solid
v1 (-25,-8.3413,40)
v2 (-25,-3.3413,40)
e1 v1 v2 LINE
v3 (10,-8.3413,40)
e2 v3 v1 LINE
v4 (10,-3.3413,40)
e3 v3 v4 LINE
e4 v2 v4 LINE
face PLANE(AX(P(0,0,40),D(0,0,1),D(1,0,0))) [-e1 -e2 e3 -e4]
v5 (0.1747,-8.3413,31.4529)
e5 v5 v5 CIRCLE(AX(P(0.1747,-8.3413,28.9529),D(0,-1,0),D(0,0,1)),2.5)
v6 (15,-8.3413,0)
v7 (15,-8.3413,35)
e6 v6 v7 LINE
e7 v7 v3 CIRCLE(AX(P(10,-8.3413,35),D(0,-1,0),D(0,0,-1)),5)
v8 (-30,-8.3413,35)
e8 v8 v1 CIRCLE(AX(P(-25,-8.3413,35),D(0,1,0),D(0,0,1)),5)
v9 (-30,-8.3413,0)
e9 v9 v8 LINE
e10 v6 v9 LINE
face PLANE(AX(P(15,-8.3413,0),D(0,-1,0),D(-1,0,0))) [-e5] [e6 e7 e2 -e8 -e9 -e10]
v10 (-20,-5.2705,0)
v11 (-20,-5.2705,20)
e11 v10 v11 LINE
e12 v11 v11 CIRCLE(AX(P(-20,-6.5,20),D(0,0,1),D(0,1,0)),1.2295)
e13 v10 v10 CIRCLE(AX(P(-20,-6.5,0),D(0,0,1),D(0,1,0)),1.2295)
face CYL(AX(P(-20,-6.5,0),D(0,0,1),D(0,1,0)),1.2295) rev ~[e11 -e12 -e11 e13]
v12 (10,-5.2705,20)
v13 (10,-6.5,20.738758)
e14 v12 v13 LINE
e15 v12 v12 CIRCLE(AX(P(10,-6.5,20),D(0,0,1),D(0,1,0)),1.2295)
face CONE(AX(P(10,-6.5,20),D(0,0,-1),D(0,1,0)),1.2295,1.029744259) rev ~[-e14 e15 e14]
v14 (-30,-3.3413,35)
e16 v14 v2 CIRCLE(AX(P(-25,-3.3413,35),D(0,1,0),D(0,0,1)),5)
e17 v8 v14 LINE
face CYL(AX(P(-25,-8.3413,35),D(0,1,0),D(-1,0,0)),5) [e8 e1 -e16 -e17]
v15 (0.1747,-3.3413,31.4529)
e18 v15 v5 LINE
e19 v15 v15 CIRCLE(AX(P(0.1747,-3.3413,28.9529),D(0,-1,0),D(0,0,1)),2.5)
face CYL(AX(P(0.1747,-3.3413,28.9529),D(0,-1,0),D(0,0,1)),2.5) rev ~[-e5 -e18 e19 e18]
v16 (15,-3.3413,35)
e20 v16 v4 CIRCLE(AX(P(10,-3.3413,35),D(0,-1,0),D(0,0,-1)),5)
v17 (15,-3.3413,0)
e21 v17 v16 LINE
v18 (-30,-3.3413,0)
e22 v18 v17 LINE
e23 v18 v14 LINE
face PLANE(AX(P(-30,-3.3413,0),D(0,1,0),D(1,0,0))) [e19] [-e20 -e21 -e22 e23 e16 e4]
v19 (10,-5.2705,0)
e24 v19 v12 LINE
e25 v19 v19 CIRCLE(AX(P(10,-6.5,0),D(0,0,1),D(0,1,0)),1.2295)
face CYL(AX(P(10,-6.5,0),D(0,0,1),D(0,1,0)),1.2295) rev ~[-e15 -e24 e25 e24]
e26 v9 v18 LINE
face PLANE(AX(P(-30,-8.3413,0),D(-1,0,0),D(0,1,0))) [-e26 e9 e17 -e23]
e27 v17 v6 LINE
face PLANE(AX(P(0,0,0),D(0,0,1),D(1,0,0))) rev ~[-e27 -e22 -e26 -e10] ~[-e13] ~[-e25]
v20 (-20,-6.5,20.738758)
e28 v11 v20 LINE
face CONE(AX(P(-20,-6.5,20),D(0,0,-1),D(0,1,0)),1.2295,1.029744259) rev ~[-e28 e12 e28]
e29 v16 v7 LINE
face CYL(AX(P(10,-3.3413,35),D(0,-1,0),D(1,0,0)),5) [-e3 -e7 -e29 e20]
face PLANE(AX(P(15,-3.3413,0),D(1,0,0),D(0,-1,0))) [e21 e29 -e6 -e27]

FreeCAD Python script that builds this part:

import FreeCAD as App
import Part
import Sketcher

V = App.Vector
Q = App.Units.Quantity


def edges_at(feature, points):
    """Names of the edges that pass closest to the given points."""
    edges = feature.Shape.Edges
    near = lambda p: min(range(len(edges)), key=lambda i: edges[i].distToShape(Part.Vertex(*p))[0])
    return sorted({f"Edge{near(p) + 1}" for p in points})

doc = App.newDocument("Part")
body = doc.addObject("PartDesign::Body", "Body")

# Sketch on XY plane
sketch1 = body.newObject("Sketcher::SketchObject", "Sketch")
sketch1.AttachmentSupport = (doc.getObject("XY_Plane"), [""])
sketch1.MapMode = "FlatFace"
sketch1.addGeometry(Part.LineSegment(V(15, -3, 0), V(-30, -3, 0)), False)
sketch1.addGeometry(Part.LineSegment(V(-30, -3, 0), V(-30, -8, 0)), False)
sketch1.addGeometry(Part.LineSegment(V(-30, -8, 0), V(15, -8, 0)), False)
sketch1.addGeometry(Part.LineSegment(V(15, -8, 0), V(15, -3, 0)), False)
sketch1.addConstraint(Sketcher.Constraint("Coincident", 0, 2, 1, 1))
sketch1.addConstraint(Sketcher.Constraint("Coincident", 1, 2, 2, 1))
sketch1.addConstraint(Sketcher.Constraint("Coincident", 2, 2, 3, 1))
sketch1.addConstraint(Sketcher.Constraint("Coincident", 3, 2, 0, 1))
sketch1.addConstraint(Sketcher.Constraint("Horizontal", 0))
sketch1.addConstraint(Sketcher.Constraint("Vertical", 1))
sketch1.addConstraint(Sketcher.Constraint("Horizontal", 2))
sketch1.addConstraint(Sketcher.Constraint("Vertical", 3))
sketch1.addConstraint(Sketcher.Constraint("DistanceY", 1, 2, 1, 1, Q("5 mm")))
sketch1.addConstraint(Sketcher.Constraint("DistanceX", 0, 2, 0, 1, Q("45 mm")))
sketch1.addConstraint(Sketcher.Constraint("DistanceX", 0, 2, -1, 1, Q("30 mm")))
sketch1.addConstraint(Sketcher.Constraint("DistanceY", 0, 2, -1, 1, Q("3.3413 mm")))
pad1 = body.newObject("PartDesign::Pad", "Pad")
pad1.Profile = sketch1
pad1.Length = 40
doc.recompute()

fillet = body.newObject("PartDesign::Fillet", "Fillet")
fillet.Base = (pad1, edges_at(pad1, [(-30, -5.841, 40), (15, -5.841, 40)]))
fillet.Radius = 5

# Sketch on XZ plane
sketch2 = body.newObject("Sketcher::SketchObject", "Sketch001")
sketch2.AttachmentSupport = (doc.getObject("XZ_Plane"), [""])
sketch2.MapMode = "FlatFace"
sketch2.AttachmentOffset = App.Placement(V(0, 0, 3.3413), App.Rotation())
sketch2.addGeometry(Part.Circle(V(0.2, 29, 0), V(0, 0, 1), 2.5), False)
sketch2.addConstraint(Sketcher.Constraint("Diameter", 0, Q("5 mm")))
sketch2.addConstraint(Sketcher.Constraint("DistanceY", -1, 1, 0, 3, Q("28.953 mm")))
sketch2.addConstraint(Sketcher.Constraint("DistanceX", -1, 1, 0, 3, Q("0.1747 mm")))
doc.recompute()
hole = body.newObject("PartDesign::Hole", "Hole")
hole.Profile = sketch2
hole.ThreadType = "None"
hole.Diameter = 5
hole.DepthType = "Dimension"
hole.Depth = 8
hole.DrillPoint = "Angled"
hole.DrillPointAngle = 118
hole.Reversed = True

# Sketch on XY plane
sketch3 = body.newObject("Sketcher::SketchObject", "Sketch002")
sketch3.AttachmentSupport = (doc.getObject("XY_Plane"), [""])
sketch3.MapMode = "FlatFace"
sketch3.addGeometry(Part.Circle(V(10, -6.5, 0), V(0, 0, 1), 1.2), False)
sketch3.addGeometry(Part.Circle(V(-20, -6.5, 0), V(0, 0, 1), 1.2), False)
sketch3.addConstraint(Sketcher.Constraint("Equal", 0, 1))
sketch3.addConstraint(Sketcher.Constraint("Horizontal", 0, 3, 1, 3))
sketch3.addConstraint(Sketcher.Constraint("Diameter", 0, Q("2.459 mm")))
sketch3.addConstraint(Sketcher.Constraint("DistanceX", -1, 1, 0, 3, Q("10 mm")))
sketch3.addConstraint(Sketcher.Constraint("DistanceX", 1, 3, -1, 1, Q("20 mm")))
sketch3.addConstraint(Sketcher.Constraint("DistanceY", 0, 3, -1, 1, Q("6.5 mm")))
doc.recompute()
hole2 = body.newObject("PartDesign::Hole", "Hole001")
hole2.Profile = sketch3
hole2.ThreadType = "None"
hole2.Diameter = 2.459
hole2.DepthType = "Dimension"
hole2.Depth = 20
hole2.DrillPoint = "Angled"
hole2.DrillPointAngle = 118
hole2.Reversed = True

doc.recompute()
